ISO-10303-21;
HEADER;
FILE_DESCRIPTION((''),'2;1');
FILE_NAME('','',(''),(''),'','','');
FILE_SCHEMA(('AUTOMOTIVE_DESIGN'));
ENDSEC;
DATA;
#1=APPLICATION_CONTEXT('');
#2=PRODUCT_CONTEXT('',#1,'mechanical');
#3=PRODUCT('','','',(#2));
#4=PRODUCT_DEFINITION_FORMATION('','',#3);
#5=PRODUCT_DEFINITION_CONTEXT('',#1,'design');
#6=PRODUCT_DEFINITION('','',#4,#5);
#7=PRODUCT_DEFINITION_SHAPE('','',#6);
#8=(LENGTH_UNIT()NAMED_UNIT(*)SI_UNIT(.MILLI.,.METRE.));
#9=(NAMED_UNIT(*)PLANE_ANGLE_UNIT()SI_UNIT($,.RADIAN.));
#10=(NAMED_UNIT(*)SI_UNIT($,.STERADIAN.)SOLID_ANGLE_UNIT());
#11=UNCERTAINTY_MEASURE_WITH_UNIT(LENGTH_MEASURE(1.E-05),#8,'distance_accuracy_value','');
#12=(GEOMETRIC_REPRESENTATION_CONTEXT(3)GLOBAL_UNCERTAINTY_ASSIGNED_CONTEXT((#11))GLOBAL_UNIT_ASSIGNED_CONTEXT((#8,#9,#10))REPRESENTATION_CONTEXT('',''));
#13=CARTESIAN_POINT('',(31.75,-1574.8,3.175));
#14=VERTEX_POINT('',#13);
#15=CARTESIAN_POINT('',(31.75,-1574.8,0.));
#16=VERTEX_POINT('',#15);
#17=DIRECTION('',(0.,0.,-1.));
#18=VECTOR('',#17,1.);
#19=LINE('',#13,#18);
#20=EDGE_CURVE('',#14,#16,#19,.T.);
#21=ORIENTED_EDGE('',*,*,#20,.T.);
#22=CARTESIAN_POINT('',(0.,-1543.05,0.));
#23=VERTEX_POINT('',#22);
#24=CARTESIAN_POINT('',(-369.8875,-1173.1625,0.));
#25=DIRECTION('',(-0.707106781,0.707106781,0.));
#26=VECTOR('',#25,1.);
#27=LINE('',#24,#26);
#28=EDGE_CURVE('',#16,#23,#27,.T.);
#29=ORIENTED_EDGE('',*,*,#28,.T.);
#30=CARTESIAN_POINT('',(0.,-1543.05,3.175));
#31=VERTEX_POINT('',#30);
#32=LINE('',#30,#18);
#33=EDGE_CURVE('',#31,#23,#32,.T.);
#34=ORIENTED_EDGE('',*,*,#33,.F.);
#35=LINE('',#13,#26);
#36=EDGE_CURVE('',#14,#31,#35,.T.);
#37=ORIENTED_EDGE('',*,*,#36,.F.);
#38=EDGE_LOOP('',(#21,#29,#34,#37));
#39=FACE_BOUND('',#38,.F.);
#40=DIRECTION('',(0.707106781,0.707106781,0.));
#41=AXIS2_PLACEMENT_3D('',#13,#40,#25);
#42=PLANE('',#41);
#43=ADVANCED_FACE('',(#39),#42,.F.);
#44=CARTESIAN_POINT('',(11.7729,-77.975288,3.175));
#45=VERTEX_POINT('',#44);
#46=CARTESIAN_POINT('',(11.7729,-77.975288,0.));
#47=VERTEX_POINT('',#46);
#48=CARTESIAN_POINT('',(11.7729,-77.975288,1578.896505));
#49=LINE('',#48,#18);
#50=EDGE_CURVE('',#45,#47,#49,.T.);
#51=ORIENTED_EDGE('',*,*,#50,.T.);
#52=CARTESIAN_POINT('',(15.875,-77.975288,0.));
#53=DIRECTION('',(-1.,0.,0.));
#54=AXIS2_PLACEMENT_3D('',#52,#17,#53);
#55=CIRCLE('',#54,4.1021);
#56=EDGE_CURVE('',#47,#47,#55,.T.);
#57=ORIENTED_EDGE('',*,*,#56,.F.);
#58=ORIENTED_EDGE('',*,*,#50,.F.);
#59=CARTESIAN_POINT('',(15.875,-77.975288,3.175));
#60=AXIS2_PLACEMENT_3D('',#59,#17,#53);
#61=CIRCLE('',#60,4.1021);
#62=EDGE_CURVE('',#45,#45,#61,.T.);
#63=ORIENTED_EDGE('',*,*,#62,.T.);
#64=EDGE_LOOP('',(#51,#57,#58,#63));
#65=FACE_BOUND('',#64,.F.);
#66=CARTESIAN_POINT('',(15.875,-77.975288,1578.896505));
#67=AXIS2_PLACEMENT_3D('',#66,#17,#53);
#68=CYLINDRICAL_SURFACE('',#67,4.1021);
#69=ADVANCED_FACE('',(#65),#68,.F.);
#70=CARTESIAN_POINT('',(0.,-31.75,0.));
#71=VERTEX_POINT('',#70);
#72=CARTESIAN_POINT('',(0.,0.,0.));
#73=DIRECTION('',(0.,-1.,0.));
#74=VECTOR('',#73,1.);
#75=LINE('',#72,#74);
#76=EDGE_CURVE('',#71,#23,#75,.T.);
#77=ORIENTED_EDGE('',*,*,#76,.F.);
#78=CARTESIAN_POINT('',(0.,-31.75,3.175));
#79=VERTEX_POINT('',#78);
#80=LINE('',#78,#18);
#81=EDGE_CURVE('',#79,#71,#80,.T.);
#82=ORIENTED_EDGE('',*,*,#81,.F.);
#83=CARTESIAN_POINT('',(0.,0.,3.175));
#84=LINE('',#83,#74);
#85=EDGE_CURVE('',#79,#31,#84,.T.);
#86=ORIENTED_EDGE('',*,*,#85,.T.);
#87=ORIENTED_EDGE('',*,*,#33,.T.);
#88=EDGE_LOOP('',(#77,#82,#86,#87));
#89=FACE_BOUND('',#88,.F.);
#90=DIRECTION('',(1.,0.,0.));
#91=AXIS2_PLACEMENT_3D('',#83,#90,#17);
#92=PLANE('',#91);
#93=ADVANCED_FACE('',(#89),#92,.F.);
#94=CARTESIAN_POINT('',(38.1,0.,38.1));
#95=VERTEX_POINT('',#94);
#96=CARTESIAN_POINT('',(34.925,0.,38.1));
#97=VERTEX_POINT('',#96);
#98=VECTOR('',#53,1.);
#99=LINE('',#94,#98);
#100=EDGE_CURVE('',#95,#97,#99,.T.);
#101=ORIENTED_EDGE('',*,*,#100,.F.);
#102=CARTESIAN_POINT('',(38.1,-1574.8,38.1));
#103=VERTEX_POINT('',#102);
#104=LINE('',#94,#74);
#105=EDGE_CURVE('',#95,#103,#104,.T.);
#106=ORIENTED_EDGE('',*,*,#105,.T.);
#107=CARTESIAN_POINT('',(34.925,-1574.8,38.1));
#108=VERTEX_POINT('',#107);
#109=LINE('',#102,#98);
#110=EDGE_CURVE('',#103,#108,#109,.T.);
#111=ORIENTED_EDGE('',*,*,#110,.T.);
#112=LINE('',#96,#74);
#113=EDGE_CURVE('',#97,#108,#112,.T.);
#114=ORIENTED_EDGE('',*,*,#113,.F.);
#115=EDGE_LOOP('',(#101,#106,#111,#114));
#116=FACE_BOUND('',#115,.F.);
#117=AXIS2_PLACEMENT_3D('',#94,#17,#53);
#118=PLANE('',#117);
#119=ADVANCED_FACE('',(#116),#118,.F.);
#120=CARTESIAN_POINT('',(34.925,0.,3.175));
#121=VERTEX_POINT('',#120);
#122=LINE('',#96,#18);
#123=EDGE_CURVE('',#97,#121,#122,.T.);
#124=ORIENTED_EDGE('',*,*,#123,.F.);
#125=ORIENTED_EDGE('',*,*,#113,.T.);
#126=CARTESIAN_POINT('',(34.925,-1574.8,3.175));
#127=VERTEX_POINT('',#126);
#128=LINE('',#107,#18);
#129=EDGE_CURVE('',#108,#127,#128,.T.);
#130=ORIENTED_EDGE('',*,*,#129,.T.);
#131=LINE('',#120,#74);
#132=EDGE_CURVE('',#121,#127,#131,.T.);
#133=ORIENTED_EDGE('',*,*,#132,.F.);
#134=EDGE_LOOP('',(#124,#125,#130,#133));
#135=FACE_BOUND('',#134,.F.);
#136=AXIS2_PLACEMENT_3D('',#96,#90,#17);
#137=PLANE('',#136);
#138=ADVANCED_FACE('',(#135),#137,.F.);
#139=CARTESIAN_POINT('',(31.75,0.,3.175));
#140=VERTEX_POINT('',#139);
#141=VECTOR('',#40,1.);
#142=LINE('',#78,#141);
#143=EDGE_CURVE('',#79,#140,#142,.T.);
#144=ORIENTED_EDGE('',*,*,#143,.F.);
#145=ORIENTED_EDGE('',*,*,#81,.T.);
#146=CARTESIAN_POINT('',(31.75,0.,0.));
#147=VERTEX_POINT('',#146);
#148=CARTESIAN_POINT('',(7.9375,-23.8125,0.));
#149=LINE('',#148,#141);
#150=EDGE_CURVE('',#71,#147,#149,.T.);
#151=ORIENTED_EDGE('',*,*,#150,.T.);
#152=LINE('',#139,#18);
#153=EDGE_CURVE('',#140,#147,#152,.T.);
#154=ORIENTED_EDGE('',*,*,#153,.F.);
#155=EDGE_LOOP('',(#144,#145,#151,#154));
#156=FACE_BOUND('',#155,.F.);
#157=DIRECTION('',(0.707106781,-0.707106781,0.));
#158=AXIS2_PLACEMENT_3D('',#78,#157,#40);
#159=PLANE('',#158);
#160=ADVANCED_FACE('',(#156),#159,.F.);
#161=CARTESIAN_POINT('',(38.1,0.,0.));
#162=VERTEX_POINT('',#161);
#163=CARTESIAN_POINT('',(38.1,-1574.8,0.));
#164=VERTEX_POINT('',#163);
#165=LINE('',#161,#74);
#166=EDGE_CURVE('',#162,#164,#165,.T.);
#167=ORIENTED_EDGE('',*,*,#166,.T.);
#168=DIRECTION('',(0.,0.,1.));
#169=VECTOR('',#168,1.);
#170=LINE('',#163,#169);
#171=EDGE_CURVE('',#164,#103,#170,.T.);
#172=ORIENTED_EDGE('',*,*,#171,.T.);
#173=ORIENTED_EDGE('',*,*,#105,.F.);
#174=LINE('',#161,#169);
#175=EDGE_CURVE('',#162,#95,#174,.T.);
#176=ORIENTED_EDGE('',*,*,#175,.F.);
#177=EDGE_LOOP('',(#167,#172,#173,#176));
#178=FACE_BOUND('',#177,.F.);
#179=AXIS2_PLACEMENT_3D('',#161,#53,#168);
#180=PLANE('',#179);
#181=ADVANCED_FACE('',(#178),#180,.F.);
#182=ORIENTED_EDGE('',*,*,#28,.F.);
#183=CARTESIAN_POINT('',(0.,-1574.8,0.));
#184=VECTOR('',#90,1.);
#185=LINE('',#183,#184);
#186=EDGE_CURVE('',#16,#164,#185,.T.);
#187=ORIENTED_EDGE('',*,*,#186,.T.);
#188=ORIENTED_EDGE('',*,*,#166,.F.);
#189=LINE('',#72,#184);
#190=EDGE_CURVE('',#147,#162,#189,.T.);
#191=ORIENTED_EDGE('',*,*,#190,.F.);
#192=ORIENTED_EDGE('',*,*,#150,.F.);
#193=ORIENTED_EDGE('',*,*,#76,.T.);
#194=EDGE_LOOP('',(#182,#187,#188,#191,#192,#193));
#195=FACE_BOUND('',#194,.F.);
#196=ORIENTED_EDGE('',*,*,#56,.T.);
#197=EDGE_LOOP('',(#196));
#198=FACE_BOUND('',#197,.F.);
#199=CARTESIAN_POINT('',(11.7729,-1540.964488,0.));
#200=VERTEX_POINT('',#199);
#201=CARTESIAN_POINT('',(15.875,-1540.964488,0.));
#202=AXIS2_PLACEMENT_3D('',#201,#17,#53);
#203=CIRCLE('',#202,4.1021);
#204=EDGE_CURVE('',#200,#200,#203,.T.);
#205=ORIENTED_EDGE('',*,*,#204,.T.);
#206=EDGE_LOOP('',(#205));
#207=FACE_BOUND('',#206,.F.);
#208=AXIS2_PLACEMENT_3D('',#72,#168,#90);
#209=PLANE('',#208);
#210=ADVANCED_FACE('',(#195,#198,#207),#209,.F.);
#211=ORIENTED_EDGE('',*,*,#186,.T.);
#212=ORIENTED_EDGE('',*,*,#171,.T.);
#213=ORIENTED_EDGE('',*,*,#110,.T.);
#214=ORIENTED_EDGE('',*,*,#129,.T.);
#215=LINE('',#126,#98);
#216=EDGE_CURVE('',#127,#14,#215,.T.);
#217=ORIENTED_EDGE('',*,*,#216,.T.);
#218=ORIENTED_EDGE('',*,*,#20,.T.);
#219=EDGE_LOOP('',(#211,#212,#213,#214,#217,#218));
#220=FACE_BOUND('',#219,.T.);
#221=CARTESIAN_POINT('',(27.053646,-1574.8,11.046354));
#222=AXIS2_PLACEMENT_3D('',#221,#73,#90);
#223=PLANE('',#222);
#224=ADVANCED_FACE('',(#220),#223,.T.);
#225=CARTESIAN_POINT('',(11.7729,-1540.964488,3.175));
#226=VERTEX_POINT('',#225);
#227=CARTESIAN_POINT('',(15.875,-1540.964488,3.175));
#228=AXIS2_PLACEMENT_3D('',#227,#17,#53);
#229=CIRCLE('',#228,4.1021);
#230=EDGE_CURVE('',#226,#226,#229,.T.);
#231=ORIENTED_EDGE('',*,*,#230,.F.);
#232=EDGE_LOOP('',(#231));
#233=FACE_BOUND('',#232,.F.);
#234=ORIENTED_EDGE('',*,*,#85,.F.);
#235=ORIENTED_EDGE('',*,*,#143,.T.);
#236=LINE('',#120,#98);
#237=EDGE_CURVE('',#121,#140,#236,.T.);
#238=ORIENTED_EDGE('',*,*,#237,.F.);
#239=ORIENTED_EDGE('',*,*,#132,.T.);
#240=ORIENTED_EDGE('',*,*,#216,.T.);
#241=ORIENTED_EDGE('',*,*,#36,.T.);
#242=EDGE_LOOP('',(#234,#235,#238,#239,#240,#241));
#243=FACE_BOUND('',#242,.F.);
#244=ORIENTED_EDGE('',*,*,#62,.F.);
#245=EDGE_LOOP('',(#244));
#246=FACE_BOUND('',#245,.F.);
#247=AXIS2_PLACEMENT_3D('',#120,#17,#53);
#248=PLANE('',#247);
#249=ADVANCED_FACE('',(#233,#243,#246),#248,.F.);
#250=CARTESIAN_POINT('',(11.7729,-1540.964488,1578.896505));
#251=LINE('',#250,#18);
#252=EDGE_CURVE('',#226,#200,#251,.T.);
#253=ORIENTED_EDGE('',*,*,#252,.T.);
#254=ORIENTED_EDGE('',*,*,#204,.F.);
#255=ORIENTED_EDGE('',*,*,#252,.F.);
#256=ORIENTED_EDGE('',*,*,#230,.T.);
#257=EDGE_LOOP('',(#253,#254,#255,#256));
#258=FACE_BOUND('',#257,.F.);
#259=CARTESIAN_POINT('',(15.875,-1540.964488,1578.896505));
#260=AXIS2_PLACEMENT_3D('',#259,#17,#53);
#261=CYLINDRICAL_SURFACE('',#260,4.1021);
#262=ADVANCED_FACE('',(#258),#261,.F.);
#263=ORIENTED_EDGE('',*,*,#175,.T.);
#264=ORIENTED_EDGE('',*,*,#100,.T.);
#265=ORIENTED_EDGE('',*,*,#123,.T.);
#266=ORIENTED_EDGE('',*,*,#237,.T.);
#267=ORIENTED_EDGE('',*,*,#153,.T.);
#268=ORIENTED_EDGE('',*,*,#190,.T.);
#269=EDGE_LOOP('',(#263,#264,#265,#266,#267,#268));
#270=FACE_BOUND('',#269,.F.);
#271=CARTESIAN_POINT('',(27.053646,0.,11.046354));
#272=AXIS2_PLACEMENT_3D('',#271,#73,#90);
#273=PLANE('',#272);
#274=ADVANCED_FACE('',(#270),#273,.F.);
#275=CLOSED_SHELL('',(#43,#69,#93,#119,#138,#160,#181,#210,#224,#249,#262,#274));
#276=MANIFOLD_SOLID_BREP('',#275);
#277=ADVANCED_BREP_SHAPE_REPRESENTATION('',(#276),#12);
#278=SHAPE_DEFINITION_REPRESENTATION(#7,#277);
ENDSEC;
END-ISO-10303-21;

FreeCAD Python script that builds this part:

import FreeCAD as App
import Part
import Sketcher
from FreeCAD import Vector
Q = App.Units.Quantity


def add_polygon(sketch, points):
    """Adds a closed chain of lines whose ends are joined by coincident constraints."""
    first, n = sketch.GeometryCount, len(points)
    for a, b in zip(points, points[1:] + points[:1]):
        sketch.addGeometry(Part.LineSegment(App.Vector(*a, 0), App.Vector(*b, 0)), False)
    for i in range(n):
        sketch.addConstraint(Sketcher.Constraint("Coincident", first + i, 2, first + (i + 1) % n, 1))

doc = App.newDocument("Part")
params = doc.addObject("Spreadsheet::Sheet", "Params")
for row, (alias, value) in enumerate([
    ("sketch1_width", "1.5 in"),
    ("sketch1_width2", "0.125 in"),
    ("pad1_length", "62 in"),
    ("sketch2_width", "1.25 in"),
    ("sketch3_diameter", "0.323 in"),
    ("hole_diameter", "0.323 in"),
], start=1):
    params.set(f"A{row}", alias)
    params.set(f"B{row}", "=" + value)
    params.setAlias(f"B{row}", alias)

body = doc.addObject("PartDesign::Body", "Body")

# Sketch on XZ plane
sketch1 = body.newObject("Sketcher::SketchObject", "Sketch")
sketch1.AttachmentSupport = (doc.getObject("XZ_Plane"), [""])
sketch1.MapMode = "FlatFace"
add_polygon(sketch1, [(0, 3.2), (0, 0), (38.1, 0), (38.1, 38.1), (34.9, 38.1), (34.9, 3.2)])  # lines 0-5
sketch1.addConstraint(Sketcher.Constraint("Vertical", 0))
sketch1.addConstraint(Sketcher.Constraint("Horizontal", 1))
sketch1.addConstraint(Sketcher.Constraint("Vertical", 2))
sketch1.addConstraint(Sketcher.Constraint("Horizontal", 3))
sketch1.addConstraint(Sketcher.Constraint("Vertical", 4))
sketch1.addConstraint(Sketcher.Constraint("Horizontal", 5))
sketch1.addConstraint(Sketcher.Constraint("Coincident", 0, 2, -1, 1))
sketch1.addConstraint(Sketcher.Constraint("Equal", 3, 0))
sketch1.addConstraint(Sketcher.Constraint("Equal", 1, 2))
sketch1.addConstraint(Sketcher.Constraint("DistanceX", 1, 1, 1, 2, Q("1.5 in")))
sketch1.addConstraint(Sketcher.Constraint("DistanceX", 3, 2, 3, 1, Q("0.125 in")))
sketch1.setExpression("Constraints[15]", "Params.sketch1_width")
sketch1.setExpression("Constraints[16]", "Params.sketch1_width2")
pad1 = body.newObject("PartDesign::Pad", "Pad")
pad1.Profile = sketch1
pad1.setExpression("Length", "Params.pad1_length")

# Sketch on XY plane
sketch2 = body.newObject("Sketcher::SketchObject", "Sketch001")
sketch2.AttachmentSupport = (doc.getObject("XY_Plane"), [""])
sketch2.MapMode = "FlatFace"
sketch2.AttachmentOffset = App.Placement(Vector(0, 0, 0.125 * 25.4), App.Rotation())
add_polygon(sketch2, [(0, -1575), (32, -1575), (0, -1543)])  # lines 0-2
add_polygon(sketch2, [(0, 0), (0, -32), (32, 0)])  # lines 3-5
sketch2.addConstraint(Sketcher.Constraint("Horizontal", 0))
sketch2.addConstraint(Sketcher.Constraint("Vertical", 2))
sketch2.addConstraint(Sketcher.Constraint("Vertical", 3))
sketch2.addConstraint(Sketcher.Constraint("Horizontal", 5))
sketch2.addConstraint(Sketcher.Constraint("Coincident", 5, 2, -1, 1))
sketch2.addConstraint(Sketcher.Constraint("PointOnObject", 1, 2, -2))
sketch2.addConstraint(Sketcher.Constraint("Perpendicular", 1, 4))
sketch2.addConstraint(Sketcher.Constraint("Vertical", 0, 2, 4, 2))
sketch2.addConstraint(Sketcher.Constraint("Equal", 5, 2))
sketch2.addConstraint(Sketcher.Constraint("DistanceY", 0, 2, -1, 1, Q("62 in")))
sketch2.addConstraint(Sketcher.Constraint("DistanceX", 0, 1, 0, 2, Q("1.25 in")))
sketch2.setExpression("Constraints[16]", "Params.sketch2_width")
pocket1 = body.newObject("PartDesign::Pocket", "Pocket")
pocket1.Profile = sketch2
pocket1.Type = "ThroughAll"

# Sketch on XY plane
sketch3 = body.newObject("Sketcher::SketchObject", "Sketch002")
sketch3.AttachmentSupport = (doc.getObject("XY_Plane"), [""])
sketch3.MapMode = "FlatFace"
sketch3.AttachmentOffset = App.Placement(Vector(0, 0, 0.125 * 25.4), App.Rotation())
sketch3.addGeometry(Part.Circle(Vector(15.9, -1541, 0), Vector(0, 0, 1), 4.1), False)
sketch3.addGeometry(Part.Circle(Vector(15.9, -78, 0), Vector(0, 0, 1), 4.1), False)
sketch3.addConstraint(Sketcher.Constraint("Equal", 0, 1))
sketch3.addConstraint(Sketcher.Constraint("Vertical", 0, 3, 1, 3))
sketch3.addConstraint(Sketcher.Constraint("Diameter", 0, Q("0.323 in")))
sketch3.addConstraint(Sketcher.Constraint("DistanceX", -1, 1, 0, 3, Q("0.625 in")))
sketch3.addConstraint(Sketcher.Constraint("DistanceY", 0, 3, 1, 3, Q("57.598 in")))
sketch3.addConstraint(Sketcher.Constraint("DistanceY", 0, 3, -1, 1, Q("1540.964488 mm")))
sketch3.setExpression("Constraints[2]", "Params.sketch3_diameter")
doc.recompute()
hole = body.newObject("PartDesign::Hole", "Hole")
hole.Profile = sketch3
hole.ThreadType = "None"
hole.setExpression("Diameter", "Params.hole_diameter")
hole.DepthType = "ThroughAll"

doc.recompute()
